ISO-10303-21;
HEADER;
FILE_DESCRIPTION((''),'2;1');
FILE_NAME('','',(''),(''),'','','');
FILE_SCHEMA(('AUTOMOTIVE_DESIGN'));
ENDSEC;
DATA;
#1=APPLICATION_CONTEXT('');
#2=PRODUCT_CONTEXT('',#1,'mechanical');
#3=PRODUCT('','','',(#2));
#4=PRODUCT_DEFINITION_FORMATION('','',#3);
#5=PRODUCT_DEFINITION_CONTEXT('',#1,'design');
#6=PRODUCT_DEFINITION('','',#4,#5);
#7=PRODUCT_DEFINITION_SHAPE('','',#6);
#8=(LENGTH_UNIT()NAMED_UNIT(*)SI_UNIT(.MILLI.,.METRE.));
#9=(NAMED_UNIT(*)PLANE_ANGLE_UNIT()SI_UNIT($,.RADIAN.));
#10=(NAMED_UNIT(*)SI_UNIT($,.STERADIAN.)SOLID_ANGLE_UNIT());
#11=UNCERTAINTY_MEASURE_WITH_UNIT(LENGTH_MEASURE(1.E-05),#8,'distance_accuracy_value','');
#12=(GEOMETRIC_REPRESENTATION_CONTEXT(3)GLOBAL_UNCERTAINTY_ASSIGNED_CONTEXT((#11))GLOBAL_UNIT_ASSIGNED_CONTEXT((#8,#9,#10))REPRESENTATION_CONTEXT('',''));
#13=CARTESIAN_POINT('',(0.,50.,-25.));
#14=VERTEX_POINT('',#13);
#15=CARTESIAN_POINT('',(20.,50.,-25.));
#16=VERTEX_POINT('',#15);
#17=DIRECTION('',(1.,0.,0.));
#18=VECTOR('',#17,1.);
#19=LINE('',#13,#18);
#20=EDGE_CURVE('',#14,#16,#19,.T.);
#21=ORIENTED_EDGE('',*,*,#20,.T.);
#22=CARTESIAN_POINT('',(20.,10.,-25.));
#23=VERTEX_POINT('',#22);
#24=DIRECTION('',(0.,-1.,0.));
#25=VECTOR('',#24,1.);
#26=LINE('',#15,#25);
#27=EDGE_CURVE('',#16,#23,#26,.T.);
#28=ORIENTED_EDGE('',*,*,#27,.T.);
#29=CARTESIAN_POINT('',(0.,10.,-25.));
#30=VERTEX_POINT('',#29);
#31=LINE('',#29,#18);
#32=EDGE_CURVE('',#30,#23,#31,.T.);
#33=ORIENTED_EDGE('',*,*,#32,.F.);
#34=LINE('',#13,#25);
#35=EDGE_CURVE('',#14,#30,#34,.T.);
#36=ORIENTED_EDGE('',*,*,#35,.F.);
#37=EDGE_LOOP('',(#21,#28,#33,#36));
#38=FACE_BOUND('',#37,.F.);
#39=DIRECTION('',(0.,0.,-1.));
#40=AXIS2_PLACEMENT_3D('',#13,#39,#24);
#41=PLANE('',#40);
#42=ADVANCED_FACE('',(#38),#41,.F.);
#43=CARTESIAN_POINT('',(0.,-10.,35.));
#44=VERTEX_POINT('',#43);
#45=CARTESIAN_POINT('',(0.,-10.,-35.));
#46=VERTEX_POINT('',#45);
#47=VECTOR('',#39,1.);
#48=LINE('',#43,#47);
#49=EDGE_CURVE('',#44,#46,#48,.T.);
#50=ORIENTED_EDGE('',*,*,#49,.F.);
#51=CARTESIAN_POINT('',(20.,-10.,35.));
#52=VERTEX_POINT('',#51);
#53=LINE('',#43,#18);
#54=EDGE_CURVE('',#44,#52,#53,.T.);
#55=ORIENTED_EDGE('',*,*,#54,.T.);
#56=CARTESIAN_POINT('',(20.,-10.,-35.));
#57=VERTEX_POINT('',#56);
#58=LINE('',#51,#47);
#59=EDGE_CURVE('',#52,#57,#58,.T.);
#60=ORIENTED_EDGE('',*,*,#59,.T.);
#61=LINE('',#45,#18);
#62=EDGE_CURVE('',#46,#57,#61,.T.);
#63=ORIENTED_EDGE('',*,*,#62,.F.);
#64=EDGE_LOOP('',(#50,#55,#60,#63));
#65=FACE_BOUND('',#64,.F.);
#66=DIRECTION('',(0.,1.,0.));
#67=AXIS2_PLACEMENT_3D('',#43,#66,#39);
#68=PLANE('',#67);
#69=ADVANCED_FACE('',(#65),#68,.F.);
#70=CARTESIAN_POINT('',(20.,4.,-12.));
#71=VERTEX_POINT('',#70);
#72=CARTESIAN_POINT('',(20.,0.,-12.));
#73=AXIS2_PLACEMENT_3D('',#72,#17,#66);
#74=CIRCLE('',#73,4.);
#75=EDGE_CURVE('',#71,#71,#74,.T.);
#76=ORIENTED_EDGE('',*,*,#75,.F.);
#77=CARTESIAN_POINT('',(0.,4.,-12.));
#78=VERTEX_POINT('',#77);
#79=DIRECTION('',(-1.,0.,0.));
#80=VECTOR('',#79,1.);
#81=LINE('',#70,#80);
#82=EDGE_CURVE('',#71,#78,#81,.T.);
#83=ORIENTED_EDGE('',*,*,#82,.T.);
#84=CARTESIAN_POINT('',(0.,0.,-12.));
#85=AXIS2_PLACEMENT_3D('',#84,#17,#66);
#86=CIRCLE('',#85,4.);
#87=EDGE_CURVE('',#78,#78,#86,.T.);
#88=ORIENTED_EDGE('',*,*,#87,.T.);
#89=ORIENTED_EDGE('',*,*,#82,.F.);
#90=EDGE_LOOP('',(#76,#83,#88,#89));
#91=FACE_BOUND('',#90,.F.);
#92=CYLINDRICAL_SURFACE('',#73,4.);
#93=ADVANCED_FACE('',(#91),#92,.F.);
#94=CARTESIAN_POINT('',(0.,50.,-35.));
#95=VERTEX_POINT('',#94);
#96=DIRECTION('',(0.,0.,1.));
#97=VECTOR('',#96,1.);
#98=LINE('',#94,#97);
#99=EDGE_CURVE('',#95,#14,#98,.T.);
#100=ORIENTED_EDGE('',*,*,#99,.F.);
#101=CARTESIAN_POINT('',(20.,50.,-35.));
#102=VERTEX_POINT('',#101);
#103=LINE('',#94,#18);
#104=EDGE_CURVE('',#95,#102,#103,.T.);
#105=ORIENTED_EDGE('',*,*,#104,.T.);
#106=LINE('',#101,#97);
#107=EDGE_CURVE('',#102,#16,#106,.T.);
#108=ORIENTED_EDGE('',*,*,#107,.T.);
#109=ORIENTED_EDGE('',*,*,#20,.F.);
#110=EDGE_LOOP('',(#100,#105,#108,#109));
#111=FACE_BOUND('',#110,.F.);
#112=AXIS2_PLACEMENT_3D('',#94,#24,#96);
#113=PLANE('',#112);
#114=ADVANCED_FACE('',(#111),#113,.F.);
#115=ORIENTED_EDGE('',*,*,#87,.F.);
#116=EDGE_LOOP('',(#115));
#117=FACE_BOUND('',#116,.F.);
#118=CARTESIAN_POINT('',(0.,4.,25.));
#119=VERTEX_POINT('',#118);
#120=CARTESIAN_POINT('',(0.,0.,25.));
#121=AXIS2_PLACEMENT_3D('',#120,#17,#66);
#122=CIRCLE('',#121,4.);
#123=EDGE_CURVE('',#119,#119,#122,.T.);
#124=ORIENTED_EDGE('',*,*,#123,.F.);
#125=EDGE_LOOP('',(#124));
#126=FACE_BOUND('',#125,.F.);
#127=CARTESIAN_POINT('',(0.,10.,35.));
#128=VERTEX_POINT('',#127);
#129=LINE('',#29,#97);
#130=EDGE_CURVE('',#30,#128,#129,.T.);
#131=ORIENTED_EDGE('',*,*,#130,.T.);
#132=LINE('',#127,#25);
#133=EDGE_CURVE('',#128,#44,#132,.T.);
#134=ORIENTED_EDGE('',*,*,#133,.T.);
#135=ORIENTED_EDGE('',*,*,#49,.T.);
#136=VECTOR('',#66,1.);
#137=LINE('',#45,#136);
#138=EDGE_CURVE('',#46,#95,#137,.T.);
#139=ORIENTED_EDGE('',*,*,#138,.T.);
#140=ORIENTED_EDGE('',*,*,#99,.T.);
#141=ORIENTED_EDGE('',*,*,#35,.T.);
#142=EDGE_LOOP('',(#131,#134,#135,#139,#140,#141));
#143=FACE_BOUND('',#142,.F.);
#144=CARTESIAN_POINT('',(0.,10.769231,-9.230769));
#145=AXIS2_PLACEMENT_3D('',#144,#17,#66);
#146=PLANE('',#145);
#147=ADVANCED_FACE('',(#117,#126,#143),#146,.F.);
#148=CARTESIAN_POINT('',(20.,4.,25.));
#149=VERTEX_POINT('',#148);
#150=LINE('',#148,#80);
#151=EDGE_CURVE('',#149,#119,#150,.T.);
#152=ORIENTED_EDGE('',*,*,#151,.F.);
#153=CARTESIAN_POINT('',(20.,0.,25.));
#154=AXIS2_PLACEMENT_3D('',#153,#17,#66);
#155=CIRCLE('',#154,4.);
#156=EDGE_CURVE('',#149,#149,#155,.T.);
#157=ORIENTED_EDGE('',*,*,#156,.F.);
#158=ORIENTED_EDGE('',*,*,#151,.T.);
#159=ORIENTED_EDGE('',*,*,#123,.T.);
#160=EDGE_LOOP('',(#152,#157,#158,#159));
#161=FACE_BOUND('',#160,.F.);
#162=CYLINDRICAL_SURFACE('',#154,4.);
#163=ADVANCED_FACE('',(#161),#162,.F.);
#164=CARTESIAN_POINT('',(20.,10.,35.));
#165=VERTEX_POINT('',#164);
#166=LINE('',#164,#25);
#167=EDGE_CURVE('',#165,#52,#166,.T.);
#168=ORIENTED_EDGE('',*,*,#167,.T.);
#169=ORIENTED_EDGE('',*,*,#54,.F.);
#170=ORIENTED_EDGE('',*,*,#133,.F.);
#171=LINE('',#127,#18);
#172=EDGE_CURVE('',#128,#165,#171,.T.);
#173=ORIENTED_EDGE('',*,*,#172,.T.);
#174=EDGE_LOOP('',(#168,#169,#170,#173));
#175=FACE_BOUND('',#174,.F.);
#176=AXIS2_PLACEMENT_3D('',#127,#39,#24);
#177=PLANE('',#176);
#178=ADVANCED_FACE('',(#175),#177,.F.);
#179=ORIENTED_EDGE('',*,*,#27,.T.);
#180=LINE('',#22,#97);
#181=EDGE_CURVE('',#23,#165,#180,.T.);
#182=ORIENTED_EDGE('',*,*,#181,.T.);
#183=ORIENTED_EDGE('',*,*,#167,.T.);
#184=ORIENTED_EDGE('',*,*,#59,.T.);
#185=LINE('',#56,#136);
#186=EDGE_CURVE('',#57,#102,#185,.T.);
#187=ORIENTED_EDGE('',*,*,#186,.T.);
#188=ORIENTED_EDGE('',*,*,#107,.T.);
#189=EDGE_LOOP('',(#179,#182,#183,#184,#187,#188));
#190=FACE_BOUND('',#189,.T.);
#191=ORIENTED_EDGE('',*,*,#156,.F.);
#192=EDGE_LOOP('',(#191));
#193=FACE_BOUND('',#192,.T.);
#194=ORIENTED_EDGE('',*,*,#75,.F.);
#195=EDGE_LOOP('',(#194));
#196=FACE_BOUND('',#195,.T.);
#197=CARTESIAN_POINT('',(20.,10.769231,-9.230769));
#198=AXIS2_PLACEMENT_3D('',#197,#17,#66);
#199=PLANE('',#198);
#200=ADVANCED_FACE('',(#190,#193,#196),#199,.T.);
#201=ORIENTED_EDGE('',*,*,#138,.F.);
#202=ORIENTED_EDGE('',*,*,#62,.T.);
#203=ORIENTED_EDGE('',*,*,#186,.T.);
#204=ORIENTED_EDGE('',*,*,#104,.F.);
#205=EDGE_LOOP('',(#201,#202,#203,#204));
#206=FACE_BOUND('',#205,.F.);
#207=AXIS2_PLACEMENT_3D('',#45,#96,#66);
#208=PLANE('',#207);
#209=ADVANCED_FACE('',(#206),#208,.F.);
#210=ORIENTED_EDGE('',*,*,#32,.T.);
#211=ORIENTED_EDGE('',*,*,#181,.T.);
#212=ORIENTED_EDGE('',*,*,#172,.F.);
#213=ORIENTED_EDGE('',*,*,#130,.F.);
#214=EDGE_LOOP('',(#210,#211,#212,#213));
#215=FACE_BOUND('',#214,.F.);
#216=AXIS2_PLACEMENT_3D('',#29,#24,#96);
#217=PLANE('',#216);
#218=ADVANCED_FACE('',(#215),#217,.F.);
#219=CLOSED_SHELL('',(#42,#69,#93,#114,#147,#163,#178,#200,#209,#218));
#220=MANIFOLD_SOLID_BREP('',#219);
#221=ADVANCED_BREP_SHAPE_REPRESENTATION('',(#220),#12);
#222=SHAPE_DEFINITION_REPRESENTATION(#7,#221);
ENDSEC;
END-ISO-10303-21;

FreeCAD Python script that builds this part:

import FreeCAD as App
import Part
import Sketcher
Q = App.Units.Quantity

doc = App.newDocument("Part")
params = doc.addObject("Spreadsheet::Sheet", "Params")
for row, (alias, value) in enumerate([
    ("sketch1_width", "60 mm"),
    ("sketch1_width2", "40 mm"),
    ("sketch1_height", "70 mm"),
    ("pad1_length", "20 mm"),
    ("sketch2_diameter", "8 mm"),
    ("pocket1_length", "20 mm"),
], start=1):
    params.set(f"A{row}", alias)
    params.set(f"B{row}", "=" + value)
    params.setAlias(f"B{row}", alias)

body = doc.addObject("PartDesign::Body", "Body")

# Sketch on YZ plane
sketch1 = doc.addObject("Sketcher::SketchObject", "Sketch")
body.addObject(sketch1)
sketch1.AttachmentSupport = (doc.YZ_Plane, [""])
sketch1.MapMode = "FlatFace"
sketch1.addGeometry([
    Part.LineSegment(App.Vector(-10, 35, 0), App.Vector(-10, -35, 0)),  # 0
    Part.LineSegment(App.Vector(-10, -35, 0), App.Vector(50, -35, 0)),  # 1
    Part.LineSegment(App.Vector(50, -35, 0), App.Vector(50, -25, 0)),  # 2
    Part.LineSegment(App.Vector(50, -25, 0), App.Vector(10, -25, 0)),  # 3
    Part.LineSegment(App.Vector(10, -25, 0), App.Vector(10, 35, 0)),  # 4
    Part.LineSegment(App.Vector(10, 35, 0), App.Vector(-10, 35, 0)),  # 5
], False)
sketch1.addConstraint([
    Sketcher.Constraint("Coincident", 0, 2, 1, 1),
    Sketcher.Constraint("Coincident", 1, 2, 2, 1),
    Sketcher.Constraint("Coincident", 2, 2, 3, 1),
    Sketcher.Constraint("Coincident", 3, 2, 4, 1),
    Sketcher.Constraint("Coincident", 4, 2, 5, 1),
    Sketcher.Constraint("Coincident", 5, 2, 0, 1),
    Sketcher.Constraint("Vertical", 0),
    Sketcher.Constraint("Horizontal", 1),
    Sketcher.Constraint("Vertical", 2),
    Sketcher.Constraint("Horizontal", 3),
    Sketcher.Constraint("Vertical", 4),
    Sketcher.Constraint("Horizontal", 5),
    Sketcher.Constraint("Symmetric", 0, 2, 4, 2, -1, 1),
    Sketcher.Constraint("Equal", 1, 4),
    Sketcher.Constraint("DistanceX", 1, 1, 1, 2, Q("60 mm")),
    Sketcher.Constraint("DistanceX", 3, 2, 3, 1, Q("40 mm")),
    Sketcher.Constraint("DistanceY", 0, 2, 0, 1, Q("70 mm")),
])
sketch1.setExpression("Constraints[14]", "Params.sketch1_width")
sketch1.setExpression("Constraints[15]", "Params.sketch1_width2")
sketch1.setExpression("Constraints[16]", "Params.sketch1_height")
pad1 = doc.addObject("PartDesign::Pad", "Pad")
body.addObject(pad1)
pad1.Profile = sketch1
pad1.setExpression("Length", "Params.pad1_length")

# Sketch on YZ plane
sketch2 = doc.addObject("Sketcher::SketchObject", "Sketch001")
body.addObject(sketch2)
sketch2.AttachmentSupport = (doc.YZ_Plane, [""])
sketch2.MapMode = "FlatFace"
sketch2.AttachmentOffset = App.Placement(App.Vector(0, 0, 20), App.Rotation())
sketch2.addGeometry([
    Part.Circle(App.Vector(0, 25, 0), App.Vector(0, 0, 1), 4),
    Part.Circle(App.Vector(0, -12, 0), App.Vector(0, 0, 1), 4),
], False)
sketch2.addConstraint([
    Sketcher.Constraint("Equal", 0, 1),
    Sketcher.Constraint("PointOnObject", 0, 3, -2),
    Sketcher.Constraint("PointOnObject", 1, 3, -2),
    Sketcher.Constraint("Diameter", 0, Q("8 mm")),
    Sketcher.Constraint("DistanceY", -1, 1, 0, 3, Q("25 mm")),
    Sketcher.Constraint("DistanceY", 1, 3, -1, 1, Q("12 mm")),
])
sketch2.setExpression("Constraints[3]", "Params.sketch2_diameter")
pocket1 = doc.addObject("PartDesign::Pocket", "Pocket")
body.addObject(pocket1)
pocket1.Profile = sketch2
pocket1.setExpression("Length", "Params.pocket1_length")

doc.recompute()
